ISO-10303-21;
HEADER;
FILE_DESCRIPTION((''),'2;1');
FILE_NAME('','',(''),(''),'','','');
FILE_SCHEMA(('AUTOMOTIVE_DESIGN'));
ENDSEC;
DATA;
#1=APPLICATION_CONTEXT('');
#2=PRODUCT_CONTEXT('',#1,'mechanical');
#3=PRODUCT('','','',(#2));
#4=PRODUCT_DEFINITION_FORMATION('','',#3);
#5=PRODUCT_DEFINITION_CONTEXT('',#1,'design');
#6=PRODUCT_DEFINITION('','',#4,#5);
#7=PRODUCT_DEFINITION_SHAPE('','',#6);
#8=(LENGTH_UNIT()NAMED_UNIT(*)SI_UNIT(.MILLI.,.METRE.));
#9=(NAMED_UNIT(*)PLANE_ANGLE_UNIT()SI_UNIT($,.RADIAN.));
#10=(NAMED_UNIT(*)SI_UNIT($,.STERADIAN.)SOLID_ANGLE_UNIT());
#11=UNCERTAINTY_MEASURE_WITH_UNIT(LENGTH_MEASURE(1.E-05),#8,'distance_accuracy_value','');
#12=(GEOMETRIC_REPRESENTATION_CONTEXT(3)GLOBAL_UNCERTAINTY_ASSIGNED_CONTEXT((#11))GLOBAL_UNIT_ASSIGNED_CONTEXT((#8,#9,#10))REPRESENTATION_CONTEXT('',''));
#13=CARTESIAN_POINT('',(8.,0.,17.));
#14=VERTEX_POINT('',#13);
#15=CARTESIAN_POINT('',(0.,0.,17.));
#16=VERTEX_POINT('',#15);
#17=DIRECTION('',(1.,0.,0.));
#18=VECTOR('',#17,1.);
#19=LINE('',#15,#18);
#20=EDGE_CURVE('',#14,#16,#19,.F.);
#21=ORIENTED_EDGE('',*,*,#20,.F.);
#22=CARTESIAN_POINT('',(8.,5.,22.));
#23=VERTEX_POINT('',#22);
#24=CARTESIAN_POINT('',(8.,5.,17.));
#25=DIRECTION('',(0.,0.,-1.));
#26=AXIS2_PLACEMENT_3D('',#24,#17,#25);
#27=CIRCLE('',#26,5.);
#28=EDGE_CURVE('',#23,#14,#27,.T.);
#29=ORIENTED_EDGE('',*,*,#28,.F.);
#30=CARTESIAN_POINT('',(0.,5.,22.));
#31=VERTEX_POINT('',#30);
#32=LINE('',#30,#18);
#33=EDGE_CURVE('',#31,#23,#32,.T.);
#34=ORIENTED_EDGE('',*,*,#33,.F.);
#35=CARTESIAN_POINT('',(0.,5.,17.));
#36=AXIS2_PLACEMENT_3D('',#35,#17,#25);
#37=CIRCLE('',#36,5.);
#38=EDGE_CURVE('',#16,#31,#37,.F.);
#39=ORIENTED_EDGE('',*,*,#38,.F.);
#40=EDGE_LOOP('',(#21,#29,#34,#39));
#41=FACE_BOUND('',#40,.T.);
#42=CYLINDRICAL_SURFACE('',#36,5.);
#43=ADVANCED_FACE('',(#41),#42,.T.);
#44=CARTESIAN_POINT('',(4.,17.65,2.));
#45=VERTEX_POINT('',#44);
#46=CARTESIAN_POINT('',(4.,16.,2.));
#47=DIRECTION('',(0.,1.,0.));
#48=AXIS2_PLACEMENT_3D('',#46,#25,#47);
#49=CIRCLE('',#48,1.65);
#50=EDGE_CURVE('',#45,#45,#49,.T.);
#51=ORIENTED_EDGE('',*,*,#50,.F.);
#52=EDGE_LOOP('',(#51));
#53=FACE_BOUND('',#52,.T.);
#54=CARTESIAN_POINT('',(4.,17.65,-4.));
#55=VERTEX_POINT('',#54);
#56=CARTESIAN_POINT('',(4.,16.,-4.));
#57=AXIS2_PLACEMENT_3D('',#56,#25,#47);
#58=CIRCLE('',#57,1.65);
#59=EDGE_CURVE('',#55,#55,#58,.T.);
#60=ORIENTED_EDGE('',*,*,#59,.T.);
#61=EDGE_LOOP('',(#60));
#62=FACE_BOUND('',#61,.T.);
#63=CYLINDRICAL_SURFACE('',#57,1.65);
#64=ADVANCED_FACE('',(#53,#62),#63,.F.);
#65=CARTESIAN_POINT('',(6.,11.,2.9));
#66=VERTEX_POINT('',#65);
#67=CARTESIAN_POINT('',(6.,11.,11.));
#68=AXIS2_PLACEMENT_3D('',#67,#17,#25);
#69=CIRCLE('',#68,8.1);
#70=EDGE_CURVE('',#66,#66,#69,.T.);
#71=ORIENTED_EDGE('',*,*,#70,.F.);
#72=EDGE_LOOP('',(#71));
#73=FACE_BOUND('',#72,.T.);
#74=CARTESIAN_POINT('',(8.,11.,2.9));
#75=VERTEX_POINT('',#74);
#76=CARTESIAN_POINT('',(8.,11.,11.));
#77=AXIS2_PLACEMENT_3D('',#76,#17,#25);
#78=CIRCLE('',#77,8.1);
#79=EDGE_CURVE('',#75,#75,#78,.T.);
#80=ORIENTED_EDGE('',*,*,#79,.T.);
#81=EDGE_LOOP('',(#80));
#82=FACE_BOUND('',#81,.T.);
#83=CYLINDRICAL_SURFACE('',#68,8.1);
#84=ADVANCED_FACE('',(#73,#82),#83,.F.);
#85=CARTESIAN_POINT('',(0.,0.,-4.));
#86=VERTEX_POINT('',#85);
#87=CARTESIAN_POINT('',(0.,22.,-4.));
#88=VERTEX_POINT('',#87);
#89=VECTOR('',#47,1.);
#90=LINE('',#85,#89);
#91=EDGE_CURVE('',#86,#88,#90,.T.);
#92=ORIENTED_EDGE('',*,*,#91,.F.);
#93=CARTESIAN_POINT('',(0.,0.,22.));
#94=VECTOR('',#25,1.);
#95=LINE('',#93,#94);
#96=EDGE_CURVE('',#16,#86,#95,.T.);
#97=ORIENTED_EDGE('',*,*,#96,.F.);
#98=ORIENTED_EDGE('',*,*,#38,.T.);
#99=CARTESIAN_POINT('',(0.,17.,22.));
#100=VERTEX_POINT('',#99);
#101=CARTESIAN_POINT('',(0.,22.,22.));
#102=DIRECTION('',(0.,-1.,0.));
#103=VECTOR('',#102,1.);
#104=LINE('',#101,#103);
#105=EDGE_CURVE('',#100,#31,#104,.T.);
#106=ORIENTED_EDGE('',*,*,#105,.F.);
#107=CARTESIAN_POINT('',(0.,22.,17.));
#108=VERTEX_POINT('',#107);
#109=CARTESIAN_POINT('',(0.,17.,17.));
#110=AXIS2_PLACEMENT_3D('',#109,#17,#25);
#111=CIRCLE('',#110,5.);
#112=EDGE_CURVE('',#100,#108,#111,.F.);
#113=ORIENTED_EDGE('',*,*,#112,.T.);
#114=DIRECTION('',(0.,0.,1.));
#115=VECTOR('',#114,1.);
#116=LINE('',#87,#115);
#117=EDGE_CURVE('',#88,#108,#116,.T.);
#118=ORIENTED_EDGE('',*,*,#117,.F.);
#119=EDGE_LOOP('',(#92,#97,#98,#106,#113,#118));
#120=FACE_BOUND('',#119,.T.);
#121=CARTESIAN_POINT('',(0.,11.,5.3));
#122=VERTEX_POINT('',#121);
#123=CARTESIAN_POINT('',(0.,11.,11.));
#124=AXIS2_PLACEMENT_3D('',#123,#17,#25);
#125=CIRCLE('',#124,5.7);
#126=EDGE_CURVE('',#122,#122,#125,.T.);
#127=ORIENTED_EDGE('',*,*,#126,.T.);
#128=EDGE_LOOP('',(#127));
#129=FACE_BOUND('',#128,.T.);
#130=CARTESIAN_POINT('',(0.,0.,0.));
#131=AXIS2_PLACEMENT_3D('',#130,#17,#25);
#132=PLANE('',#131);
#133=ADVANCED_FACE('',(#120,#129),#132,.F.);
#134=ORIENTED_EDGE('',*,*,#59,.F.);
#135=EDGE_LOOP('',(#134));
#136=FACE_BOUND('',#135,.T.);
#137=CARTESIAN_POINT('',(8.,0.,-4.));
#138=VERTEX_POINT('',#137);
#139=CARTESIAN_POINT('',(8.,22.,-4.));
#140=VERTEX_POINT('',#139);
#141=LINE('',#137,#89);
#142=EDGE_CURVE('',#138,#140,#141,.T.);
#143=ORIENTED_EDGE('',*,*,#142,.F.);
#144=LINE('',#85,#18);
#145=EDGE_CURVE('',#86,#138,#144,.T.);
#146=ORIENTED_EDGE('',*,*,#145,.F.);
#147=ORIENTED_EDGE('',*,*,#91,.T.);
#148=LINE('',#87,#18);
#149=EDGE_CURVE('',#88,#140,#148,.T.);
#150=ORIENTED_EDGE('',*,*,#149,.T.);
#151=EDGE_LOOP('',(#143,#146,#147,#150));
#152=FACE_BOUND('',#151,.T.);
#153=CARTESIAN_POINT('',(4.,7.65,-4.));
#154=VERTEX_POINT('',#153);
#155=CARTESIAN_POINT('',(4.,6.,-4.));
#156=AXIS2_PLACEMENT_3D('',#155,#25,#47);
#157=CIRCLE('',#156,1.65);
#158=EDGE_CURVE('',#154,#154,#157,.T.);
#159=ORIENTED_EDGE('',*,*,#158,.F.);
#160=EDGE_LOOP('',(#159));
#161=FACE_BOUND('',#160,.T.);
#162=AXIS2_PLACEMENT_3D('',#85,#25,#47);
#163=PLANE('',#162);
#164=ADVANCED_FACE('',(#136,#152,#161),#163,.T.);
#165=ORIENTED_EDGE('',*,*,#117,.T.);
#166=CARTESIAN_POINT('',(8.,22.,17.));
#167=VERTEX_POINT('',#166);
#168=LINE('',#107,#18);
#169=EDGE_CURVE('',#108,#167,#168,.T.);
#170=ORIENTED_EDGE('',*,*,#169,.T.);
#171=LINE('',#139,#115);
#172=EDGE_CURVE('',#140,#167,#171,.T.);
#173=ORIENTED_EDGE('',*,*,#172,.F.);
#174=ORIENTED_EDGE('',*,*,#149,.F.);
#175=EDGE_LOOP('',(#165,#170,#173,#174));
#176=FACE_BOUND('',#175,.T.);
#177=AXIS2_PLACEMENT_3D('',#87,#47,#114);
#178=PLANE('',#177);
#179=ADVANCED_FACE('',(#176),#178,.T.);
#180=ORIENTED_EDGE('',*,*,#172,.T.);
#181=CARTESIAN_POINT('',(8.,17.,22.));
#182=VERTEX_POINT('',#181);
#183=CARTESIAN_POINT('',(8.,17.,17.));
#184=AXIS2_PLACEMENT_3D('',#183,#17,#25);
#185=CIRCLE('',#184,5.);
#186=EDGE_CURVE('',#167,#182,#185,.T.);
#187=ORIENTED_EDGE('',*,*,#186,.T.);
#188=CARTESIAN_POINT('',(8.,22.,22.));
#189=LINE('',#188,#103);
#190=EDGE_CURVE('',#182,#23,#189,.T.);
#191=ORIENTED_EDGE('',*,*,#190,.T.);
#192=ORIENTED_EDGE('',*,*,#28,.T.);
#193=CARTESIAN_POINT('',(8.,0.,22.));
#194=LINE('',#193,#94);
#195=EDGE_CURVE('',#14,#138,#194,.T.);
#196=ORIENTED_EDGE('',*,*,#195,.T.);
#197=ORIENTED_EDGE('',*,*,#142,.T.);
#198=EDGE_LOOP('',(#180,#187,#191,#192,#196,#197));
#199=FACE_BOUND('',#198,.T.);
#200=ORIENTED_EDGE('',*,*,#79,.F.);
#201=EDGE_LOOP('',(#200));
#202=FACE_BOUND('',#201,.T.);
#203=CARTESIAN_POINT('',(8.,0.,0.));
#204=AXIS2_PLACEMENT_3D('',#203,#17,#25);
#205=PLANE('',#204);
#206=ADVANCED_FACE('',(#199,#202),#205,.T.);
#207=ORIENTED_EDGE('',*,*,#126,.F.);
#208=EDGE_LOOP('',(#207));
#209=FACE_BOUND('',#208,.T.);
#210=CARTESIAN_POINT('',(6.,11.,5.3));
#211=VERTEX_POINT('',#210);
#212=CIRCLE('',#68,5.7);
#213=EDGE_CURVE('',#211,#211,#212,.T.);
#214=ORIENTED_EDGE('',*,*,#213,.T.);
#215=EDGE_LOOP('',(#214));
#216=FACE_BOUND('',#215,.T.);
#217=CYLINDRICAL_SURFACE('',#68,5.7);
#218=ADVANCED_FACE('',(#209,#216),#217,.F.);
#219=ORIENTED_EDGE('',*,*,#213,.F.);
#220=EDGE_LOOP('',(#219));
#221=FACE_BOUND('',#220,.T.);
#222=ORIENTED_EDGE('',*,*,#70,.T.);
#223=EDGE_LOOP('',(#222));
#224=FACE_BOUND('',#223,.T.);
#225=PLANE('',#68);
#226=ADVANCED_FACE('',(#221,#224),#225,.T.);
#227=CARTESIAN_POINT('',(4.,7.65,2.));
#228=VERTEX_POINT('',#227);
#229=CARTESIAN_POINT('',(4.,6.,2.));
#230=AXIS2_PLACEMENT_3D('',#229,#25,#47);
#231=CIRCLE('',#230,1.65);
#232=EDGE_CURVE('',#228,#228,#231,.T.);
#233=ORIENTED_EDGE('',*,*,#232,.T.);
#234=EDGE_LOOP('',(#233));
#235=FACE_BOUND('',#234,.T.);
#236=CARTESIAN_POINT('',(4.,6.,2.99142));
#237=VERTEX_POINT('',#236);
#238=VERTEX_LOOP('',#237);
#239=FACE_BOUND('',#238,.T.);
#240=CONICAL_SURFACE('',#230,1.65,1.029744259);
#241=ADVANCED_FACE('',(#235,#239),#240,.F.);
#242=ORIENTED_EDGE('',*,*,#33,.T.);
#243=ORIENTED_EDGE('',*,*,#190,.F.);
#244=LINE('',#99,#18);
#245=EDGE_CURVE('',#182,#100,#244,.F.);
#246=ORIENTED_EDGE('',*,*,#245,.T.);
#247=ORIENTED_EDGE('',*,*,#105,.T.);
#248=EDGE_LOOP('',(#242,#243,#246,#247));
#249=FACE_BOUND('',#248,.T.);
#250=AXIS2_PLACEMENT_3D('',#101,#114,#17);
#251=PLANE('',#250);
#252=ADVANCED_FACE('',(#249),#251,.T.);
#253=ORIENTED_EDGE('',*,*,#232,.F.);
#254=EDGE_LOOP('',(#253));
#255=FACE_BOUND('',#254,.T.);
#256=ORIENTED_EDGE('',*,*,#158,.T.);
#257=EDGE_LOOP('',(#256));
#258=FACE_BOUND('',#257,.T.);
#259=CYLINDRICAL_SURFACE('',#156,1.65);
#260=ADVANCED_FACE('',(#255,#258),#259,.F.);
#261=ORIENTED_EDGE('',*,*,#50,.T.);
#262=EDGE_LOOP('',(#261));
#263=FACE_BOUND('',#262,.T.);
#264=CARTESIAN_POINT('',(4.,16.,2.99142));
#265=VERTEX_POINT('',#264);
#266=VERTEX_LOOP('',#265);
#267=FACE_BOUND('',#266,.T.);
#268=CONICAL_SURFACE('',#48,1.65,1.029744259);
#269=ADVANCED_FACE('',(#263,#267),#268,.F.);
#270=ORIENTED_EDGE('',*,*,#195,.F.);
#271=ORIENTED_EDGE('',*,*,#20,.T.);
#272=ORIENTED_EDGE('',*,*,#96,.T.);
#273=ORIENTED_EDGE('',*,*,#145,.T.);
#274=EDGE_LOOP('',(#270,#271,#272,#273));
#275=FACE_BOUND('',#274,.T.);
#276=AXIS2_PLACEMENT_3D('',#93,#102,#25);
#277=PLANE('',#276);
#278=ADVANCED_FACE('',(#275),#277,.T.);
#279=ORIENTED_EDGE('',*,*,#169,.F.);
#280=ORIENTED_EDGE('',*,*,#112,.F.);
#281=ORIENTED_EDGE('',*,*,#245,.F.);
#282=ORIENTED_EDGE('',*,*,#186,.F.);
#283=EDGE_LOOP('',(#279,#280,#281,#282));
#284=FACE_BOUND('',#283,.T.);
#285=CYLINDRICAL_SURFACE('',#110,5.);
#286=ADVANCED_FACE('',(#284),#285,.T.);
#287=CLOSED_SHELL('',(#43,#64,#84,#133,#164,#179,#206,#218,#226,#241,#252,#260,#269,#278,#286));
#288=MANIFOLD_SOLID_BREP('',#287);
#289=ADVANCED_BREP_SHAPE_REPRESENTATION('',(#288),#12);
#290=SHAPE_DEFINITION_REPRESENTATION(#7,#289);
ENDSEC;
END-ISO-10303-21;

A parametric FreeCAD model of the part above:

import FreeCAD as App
import Part
import Sketcher


def edges_at(feature, points):
    """Names of the edges that pass closest to the given points."""
    edges = feature.Shape.Edges
    near = lambda p: min(range(len(edges)), key=lambda i: edges[i].distToShape(Part.Vertex(*p))[0])
    return sorted({f"Edge{near(p) + 1}" for p in points})


def add_polygon(sketch, points):
    """Adds a closed chain of lines whose ends are joined by coincident constraints."""
    first, n = sketch.GeometryCount, len(points)
    for a, b in zip(points, points[1:] + points[:1]):
        sketch.addGeometry(Part.LineSegment(App.Vector(*a, 0), App.Vector(*b, 0)), False)
    for i in range(n):
        sketch.addConstraint(Sketcher.Constraint("Coincident", first + i, 2, first + (i + 1) % n, 1))

doc = App.newDocument("Part")
body = doc.addObject("PartDesign::Body", "Body")

# Sketch on YZ plane
sketch1 = body.newObject("Sketcher::SketchObject", "Sketch")
sketch1.AttachmentSupport = (doc.getObject("YZ_Plane"), [""])
sketch1.MapMode = "FlatFace"
sketch1.AttachmentOffset = App.Placement(App.Vector(0, 0, 8), App.Rotation())
add_polygon(sketch1, [(22, 22), (0, 22), (0, -4), (22, -4)])  # lines 0-3
sketch1.addConstraint([
    Sketcher.Constraint("Horizontal", 0),
    Sketcher.Constraint("Vertical", 1),
    Sketcher.Constraint("Horizontal", 2),
    Sketcher.Constraint("Vertical", 3),
    Sketcher.Constraint("PointOnObject", 0, 2, -2),
    Sketcher.Constraint("DistanceX", 0, 2, 0, 1, 22.0),
    Sketcher.Constraint("DistanceY", 1, 2, 1, 1, 26.0),
    Sketcher.Constraint("DistanceY", -1, 1, 0, 2, 22.0),
])
pad1 = body.newObject("PartDesign::Pad", "Pad")
pad1.Profile = sketch1
pad1.Length = 8
pad1.Reversed = True

# Sketch on YZ plane
sketch2 = body.newObject("Sketcher::SketchObject", "Sketch001")
sketch2.AttachmentSupport = (doc.getObject("YZ_Plane"), [""])
sketch2.MapMode = "FlatFace"
sketch2.AttachmentOffset = App.Placement(App.Vector(0, 0, 8), App.Rotation())
sketch2.addGeometry(Part.Circle(App.Vector(11, 11, 0), App.Vector(0, 0, 1), 8), False)
sketch2.addConstraint([
    Sketcher.Constraint("Diameter", 0, 16.2),
    Sketcher.Constraint("DistanceX", -1, 1, 0, 3, 11.0),
    Sketcher.Constraint("DistanceY", -1, 1, 0, 3, 11.0),
])
pocket1 = body.newObject("PartDesign::Pocket", "Pocket")
pocket1.Profile = sketch2
pocket1.Length = 2

# Sketch on XY plane
sketch3 = body.newObject("Sketcher::SketchObject", "Sketch002")
sketch3.AttachmentSupport = (doc.getObject("XY_Plane"), [""])
sketch3.MapMode = "FlatFace"
sketch3.AttachmentOffset = App.Placement(App.Vector(0, 0, -4), App.Rotation())
sketch3.addGeometry([
    Part.Circle(App.Vector(4, 16, 0), App.Vector(0, 0, 1), 1.6),
    Part.Circle(App.Vector(4, 6, 0), App.Vector(0, 0, 1), 1.6),
], False)
sketch3.addConstraint([
    Sketcher.Constraint("Equal", 0, 1),
    Sketcher.Constraint("Vertical", 0, 3, 1, 3),
    Sketcher.Constraint("Diameter", 0, 3.3),
    Sketcher.Constraint("DistanceX", -1, 1, 0, 3, 4.0),
    Sketcher.Constraint("DistanceY", -1, 1, 0, 3, 16.0),
    Sketcher.Constraint("DistanceY", -1, 1, 1, 3, 6.0),
])
doc.recompute()
hole = body.newObject("PartDesign::Hole", "Hole")
hole.Profile = sketch3
hole.ThreadType = "None"
hole.Diameter = 3.3
hole.DepthType = "Dimension"
hole.Depth = 6
hole.DrillPoint = "Angled"
hole.DrillPointAngle = 118
hole.Reversed = True

# Sketch on YZ plane
sketch4 = body.newObject("Sketcher::SketchObject", "Sketch003")
sketch4.AttachmentSupport = (doc.getObject("YZ_Plane"), [""])
sketch4.MapMode = "FlatFace"
sketch4.AttachmentOffset = App.Placement(App.Vector(0, 0, 6), App.Rotation())
sketch4.addGeometry(Part.Circle(App.Vector(11, 11, 0), App.Vector(0, 0, 1), 6), False)
sketch4.addConstraint([
    Sketcher.Constraint("Diameter", 0, 11.4),
    Sketcher.Constraint("DistanceX", -1, 1, 0, 3, 11.0),
    Sketcher.Constraint("DistanceY", -1, 1, 0, 3, 11.0),
])
doc.recompute()
hole2 = body.newObject("PartDesign::Hole", "Hole001")
hole2.Profile = sketch4
hole2.ThreadType = "None"
hole2.Diameter = 11.4
hole2.DepthType = "ThroughAll"
doc.recompute()

fillet = body.newObject("PartDesign::Fillet", "Fillet")
fillet.Base = (hole2, edges_at(hole2, [(4, 0, 22), (4, 22, 22)]))
fillet.Radius = 5

doc.recompute()
